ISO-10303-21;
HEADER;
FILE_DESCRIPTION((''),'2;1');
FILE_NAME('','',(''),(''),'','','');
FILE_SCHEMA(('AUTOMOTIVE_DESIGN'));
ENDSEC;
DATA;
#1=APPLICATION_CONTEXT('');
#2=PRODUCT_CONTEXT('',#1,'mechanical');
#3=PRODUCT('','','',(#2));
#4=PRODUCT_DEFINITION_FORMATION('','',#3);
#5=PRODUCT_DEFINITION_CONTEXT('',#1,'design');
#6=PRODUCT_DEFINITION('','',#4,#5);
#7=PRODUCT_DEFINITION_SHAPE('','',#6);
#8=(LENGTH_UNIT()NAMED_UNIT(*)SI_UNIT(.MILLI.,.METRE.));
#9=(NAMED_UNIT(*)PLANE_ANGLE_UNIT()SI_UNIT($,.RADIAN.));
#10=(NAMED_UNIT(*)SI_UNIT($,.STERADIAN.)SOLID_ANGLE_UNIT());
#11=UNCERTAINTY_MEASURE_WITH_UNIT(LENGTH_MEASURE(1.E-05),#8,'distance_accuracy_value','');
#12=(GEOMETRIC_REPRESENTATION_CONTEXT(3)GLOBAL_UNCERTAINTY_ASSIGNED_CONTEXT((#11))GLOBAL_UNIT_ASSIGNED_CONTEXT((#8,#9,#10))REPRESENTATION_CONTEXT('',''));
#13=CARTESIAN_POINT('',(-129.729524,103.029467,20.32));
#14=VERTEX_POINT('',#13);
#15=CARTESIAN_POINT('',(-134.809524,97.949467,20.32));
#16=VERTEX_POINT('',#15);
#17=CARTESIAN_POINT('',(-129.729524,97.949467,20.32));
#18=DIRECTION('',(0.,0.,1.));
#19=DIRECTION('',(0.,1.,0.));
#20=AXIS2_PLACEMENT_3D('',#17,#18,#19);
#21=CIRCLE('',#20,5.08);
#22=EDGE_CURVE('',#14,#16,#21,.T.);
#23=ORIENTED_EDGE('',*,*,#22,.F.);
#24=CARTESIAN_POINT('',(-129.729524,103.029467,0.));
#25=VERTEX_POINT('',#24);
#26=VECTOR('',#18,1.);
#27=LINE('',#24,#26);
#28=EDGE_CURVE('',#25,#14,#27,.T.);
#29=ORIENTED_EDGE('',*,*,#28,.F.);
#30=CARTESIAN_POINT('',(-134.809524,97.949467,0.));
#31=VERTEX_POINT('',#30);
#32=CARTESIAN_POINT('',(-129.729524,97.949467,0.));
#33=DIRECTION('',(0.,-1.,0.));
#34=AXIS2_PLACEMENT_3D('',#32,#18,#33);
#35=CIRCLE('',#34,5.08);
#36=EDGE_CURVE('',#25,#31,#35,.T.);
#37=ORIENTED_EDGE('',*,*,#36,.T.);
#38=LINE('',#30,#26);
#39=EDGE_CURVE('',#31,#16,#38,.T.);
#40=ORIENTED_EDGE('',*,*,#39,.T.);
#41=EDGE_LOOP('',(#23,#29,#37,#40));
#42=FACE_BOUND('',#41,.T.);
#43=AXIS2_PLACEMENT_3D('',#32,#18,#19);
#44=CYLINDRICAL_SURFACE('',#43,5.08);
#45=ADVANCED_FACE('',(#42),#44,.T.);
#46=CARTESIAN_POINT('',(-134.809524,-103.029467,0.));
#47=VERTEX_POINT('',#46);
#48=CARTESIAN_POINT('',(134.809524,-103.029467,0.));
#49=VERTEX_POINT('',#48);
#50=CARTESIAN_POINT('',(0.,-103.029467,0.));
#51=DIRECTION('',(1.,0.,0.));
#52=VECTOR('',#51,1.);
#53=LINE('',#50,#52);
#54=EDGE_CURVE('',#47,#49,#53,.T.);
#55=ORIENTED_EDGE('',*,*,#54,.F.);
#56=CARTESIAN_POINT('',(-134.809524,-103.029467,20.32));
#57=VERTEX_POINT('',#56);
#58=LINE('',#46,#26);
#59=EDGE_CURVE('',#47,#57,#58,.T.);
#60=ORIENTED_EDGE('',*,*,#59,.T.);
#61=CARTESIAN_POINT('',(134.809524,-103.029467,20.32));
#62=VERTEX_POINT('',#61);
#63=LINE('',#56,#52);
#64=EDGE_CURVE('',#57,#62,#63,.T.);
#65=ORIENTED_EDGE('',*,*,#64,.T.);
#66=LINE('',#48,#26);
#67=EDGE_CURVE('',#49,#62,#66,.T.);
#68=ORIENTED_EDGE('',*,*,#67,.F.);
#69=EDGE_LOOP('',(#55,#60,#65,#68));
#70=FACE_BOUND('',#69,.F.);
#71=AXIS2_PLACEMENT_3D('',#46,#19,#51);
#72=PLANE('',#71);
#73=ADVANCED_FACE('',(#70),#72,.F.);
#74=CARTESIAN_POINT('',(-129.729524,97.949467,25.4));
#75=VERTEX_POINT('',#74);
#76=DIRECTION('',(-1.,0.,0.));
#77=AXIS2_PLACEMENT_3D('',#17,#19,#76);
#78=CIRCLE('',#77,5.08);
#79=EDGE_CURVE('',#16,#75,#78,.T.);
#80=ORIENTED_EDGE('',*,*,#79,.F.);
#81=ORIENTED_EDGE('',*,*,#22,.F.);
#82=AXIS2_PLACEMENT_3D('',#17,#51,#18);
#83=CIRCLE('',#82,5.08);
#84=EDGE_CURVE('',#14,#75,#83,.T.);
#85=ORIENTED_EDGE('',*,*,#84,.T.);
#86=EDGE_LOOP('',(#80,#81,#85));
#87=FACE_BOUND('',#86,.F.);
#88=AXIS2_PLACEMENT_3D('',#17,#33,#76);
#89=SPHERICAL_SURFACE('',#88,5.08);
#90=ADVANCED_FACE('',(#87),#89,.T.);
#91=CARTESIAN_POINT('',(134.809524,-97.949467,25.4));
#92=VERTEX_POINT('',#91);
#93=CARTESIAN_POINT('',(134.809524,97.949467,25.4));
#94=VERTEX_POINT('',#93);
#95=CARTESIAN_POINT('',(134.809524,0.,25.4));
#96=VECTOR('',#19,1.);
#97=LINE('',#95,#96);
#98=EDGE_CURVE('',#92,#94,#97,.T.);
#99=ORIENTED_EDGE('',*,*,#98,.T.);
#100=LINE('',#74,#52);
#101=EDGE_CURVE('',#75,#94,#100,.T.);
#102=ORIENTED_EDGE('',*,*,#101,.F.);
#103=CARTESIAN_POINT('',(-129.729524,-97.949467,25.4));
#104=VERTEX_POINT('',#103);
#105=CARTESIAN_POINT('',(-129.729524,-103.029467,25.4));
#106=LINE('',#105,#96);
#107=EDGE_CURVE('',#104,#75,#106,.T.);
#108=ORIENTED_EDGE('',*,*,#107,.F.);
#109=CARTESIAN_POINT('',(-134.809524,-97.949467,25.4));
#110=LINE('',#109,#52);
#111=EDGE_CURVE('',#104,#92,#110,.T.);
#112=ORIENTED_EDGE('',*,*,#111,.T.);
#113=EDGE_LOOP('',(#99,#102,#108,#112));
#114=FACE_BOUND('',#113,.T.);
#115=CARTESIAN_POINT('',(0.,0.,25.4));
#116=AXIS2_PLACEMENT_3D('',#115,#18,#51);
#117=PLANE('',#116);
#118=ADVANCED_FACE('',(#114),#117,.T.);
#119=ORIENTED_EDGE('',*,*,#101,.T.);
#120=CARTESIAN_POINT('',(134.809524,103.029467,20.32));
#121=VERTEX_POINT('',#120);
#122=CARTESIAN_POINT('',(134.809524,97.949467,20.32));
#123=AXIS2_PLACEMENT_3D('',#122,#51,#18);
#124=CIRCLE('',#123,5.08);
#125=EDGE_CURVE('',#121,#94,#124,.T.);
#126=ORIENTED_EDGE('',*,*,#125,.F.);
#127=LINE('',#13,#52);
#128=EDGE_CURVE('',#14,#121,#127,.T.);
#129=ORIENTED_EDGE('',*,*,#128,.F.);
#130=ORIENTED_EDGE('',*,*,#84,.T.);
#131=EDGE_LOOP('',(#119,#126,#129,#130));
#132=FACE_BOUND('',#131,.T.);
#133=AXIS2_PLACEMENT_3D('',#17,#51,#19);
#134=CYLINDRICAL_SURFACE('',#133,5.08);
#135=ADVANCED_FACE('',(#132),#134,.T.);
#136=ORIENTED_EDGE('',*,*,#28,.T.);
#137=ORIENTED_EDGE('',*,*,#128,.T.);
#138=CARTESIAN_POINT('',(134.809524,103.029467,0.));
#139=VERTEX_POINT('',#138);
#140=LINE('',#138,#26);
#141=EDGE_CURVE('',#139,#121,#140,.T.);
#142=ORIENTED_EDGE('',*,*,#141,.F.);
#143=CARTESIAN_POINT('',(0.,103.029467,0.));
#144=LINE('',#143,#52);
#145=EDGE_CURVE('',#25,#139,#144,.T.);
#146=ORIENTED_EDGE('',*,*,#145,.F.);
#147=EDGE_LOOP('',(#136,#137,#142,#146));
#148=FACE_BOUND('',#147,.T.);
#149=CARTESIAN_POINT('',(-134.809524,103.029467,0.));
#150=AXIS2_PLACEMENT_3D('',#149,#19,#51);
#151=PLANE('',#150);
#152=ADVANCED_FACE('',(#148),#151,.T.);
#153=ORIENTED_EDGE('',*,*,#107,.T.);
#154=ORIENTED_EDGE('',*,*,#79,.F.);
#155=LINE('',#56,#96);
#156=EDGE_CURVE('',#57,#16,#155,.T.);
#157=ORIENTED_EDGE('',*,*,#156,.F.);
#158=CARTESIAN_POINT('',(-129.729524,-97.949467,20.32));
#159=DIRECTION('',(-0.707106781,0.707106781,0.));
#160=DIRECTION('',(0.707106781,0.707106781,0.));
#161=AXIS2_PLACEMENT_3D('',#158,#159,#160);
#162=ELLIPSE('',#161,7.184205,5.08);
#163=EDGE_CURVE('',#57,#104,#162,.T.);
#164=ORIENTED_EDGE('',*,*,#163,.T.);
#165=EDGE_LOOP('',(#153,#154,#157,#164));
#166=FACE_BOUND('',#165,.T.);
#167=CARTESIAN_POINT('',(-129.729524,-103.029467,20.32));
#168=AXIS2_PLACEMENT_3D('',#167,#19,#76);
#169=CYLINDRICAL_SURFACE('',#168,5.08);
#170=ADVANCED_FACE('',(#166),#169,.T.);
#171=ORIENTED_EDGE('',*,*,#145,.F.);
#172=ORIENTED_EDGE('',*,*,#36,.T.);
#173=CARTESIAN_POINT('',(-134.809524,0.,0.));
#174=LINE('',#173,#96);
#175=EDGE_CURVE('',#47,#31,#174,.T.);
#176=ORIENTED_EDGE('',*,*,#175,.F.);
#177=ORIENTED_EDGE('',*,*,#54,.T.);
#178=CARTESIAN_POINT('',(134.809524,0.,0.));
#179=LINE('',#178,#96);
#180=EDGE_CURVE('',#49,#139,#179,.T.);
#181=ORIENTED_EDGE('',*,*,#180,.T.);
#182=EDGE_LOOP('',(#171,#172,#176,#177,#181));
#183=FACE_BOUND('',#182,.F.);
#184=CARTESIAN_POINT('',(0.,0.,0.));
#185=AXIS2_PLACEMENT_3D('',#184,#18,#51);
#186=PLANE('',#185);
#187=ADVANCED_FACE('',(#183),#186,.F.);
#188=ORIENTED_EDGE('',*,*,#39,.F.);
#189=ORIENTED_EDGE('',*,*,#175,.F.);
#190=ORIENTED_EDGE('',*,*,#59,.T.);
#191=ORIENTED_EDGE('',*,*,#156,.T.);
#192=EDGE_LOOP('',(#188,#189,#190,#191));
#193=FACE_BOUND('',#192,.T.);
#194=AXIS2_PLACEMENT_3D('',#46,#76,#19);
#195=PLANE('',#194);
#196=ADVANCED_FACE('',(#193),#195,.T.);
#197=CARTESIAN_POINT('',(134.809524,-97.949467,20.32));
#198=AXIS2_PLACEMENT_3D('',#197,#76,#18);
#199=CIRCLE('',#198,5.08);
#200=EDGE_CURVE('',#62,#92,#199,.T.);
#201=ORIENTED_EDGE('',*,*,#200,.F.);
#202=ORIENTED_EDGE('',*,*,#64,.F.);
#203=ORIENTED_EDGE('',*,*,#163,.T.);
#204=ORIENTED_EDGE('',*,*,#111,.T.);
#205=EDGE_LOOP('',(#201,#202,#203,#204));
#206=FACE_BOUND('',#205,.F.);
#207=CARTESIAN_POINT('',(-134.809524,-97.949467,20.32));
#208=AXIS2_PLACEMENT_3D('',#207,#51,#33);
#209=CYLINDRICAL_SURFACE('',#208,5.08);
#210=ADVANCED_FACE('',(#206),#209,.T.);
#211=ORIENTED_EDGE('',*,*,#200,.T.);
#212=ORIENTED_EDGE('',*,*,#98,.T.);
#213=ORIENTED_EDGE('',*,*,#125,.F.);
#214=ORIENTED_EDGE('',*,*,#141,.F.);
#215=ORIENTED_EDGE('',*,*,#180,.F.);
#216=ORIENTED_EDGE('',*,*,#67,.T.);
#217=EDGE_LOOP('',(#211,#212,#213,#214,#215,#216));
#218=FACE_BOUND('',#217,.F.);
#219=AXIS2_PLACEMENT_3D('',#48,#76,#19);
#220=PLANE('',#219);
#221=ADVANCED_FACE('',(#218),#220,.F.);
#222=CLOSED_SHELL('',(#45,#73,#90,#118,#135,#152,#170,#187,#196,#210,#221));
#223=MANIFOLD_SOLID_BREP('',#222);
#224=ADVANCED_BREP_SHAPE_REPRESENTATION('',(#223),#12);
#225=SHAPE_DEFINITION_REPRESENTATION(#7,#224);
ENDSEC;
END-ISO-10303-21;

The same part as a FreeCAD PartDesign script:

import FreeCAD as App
import Part
import Sketcher
from FreeCAD import Vector
Q = App.Units.Quantity


def edges_at(feature, points):
    """Names of the edges that pass closest to the given points."""
    edges = feature.Shape.Edges
    near = lambda p: min(range(len(edges)), key=lambda i: edges[i].distToShape(Part.Vertex(*p))[0])
    return sorted({f"Edge{near(p) + 1}" for p in points})

doc = App.newDocument("Part")
body = doc.addObject("PartDesign::Body", "Body")

sketch1 = body.newObject("Sketcher::SketchObject", "Sketch")
sketch1.AttachmentSupport = (doc.getObject("XY_Plane"), [""])
sketch1.MapMode = "FlatFace"
sketch1.addGeometry(Part.LineSegment(Vector(-135, 103, 0), Vector(-135, -103, 0)), False)
sketch1.addGeometry(Part.LineSegment(Vector(-135, -103, 0), Vector(135, -103, 0)), False)
sketch1.addGeometry(Part.LineSegment(Vector(135, -103, 0), Vector(135, 103, 0)), False)
sketch1.addGeometry(Part.LineSegment(Vector(135, 103, 0), Vector(-135, 103, 0)), False)
sketch1.addConstraint(Sketcher.Constraint("Coincident", 0, 2, 1, 1))
sketch1.addConstraint(Sketcher.Constraint("Coincident", 1, 2, 2, 1))
sketch1.addConstraint(Sketcher.Constraint("Coincident", 2, 2, 3, 1))
sketch1.addConstraint(Sketcher.Constraint("Coincident", 3, 2, 0, 1))
sketch1.addConstraint(Sketcher.Constraint("Vertical", 0))
sketch1.addConstraint(Sketcher.Constraint("Horizontal", 1))
sketch1.addConstraint(Sketcher.Constraint("Vertical", 2))
sketch1.addConstraint(Sketcher.Constraint("Horizontal", 3))
sketch1.addConstraint(Sketcher.Constraint("Symmetric", 0, 2, 2, 2, -1, 1))
sketch1.addConstraint(Sketcher.Constraint("DistanceX", 1, 1, 1, 2, 269.619048))
sketch1.addConstraint(Sketcher.Constraint("DistanceY", 0, 2, 0, 1, 206.058934))
pad1 = body.newObject("PartDesign::Pad", "Pad")
pad1.Profile = sketch1
pad1.Length = Q("1 in")
doc.recompute()

fillet = body.newObject("PartDesign::Fillet", "Fillet")
fillet.Base = (pad1, edges_at(pad1, [(-134.81, 0, 25.4), (0, -103.029, 25.4)]))
fillet.Radius = Q("0.2 in")
doc.recompute()

fillet2 = body.newObject("PartDesign::Fillet", "Fillet001")
fillet2.Base = (fillet, edges_at(fillet, [(2.54, 103.029, 25.4)]))
fillet2.Radius = Q("0.2 in")

doc.recompute()
